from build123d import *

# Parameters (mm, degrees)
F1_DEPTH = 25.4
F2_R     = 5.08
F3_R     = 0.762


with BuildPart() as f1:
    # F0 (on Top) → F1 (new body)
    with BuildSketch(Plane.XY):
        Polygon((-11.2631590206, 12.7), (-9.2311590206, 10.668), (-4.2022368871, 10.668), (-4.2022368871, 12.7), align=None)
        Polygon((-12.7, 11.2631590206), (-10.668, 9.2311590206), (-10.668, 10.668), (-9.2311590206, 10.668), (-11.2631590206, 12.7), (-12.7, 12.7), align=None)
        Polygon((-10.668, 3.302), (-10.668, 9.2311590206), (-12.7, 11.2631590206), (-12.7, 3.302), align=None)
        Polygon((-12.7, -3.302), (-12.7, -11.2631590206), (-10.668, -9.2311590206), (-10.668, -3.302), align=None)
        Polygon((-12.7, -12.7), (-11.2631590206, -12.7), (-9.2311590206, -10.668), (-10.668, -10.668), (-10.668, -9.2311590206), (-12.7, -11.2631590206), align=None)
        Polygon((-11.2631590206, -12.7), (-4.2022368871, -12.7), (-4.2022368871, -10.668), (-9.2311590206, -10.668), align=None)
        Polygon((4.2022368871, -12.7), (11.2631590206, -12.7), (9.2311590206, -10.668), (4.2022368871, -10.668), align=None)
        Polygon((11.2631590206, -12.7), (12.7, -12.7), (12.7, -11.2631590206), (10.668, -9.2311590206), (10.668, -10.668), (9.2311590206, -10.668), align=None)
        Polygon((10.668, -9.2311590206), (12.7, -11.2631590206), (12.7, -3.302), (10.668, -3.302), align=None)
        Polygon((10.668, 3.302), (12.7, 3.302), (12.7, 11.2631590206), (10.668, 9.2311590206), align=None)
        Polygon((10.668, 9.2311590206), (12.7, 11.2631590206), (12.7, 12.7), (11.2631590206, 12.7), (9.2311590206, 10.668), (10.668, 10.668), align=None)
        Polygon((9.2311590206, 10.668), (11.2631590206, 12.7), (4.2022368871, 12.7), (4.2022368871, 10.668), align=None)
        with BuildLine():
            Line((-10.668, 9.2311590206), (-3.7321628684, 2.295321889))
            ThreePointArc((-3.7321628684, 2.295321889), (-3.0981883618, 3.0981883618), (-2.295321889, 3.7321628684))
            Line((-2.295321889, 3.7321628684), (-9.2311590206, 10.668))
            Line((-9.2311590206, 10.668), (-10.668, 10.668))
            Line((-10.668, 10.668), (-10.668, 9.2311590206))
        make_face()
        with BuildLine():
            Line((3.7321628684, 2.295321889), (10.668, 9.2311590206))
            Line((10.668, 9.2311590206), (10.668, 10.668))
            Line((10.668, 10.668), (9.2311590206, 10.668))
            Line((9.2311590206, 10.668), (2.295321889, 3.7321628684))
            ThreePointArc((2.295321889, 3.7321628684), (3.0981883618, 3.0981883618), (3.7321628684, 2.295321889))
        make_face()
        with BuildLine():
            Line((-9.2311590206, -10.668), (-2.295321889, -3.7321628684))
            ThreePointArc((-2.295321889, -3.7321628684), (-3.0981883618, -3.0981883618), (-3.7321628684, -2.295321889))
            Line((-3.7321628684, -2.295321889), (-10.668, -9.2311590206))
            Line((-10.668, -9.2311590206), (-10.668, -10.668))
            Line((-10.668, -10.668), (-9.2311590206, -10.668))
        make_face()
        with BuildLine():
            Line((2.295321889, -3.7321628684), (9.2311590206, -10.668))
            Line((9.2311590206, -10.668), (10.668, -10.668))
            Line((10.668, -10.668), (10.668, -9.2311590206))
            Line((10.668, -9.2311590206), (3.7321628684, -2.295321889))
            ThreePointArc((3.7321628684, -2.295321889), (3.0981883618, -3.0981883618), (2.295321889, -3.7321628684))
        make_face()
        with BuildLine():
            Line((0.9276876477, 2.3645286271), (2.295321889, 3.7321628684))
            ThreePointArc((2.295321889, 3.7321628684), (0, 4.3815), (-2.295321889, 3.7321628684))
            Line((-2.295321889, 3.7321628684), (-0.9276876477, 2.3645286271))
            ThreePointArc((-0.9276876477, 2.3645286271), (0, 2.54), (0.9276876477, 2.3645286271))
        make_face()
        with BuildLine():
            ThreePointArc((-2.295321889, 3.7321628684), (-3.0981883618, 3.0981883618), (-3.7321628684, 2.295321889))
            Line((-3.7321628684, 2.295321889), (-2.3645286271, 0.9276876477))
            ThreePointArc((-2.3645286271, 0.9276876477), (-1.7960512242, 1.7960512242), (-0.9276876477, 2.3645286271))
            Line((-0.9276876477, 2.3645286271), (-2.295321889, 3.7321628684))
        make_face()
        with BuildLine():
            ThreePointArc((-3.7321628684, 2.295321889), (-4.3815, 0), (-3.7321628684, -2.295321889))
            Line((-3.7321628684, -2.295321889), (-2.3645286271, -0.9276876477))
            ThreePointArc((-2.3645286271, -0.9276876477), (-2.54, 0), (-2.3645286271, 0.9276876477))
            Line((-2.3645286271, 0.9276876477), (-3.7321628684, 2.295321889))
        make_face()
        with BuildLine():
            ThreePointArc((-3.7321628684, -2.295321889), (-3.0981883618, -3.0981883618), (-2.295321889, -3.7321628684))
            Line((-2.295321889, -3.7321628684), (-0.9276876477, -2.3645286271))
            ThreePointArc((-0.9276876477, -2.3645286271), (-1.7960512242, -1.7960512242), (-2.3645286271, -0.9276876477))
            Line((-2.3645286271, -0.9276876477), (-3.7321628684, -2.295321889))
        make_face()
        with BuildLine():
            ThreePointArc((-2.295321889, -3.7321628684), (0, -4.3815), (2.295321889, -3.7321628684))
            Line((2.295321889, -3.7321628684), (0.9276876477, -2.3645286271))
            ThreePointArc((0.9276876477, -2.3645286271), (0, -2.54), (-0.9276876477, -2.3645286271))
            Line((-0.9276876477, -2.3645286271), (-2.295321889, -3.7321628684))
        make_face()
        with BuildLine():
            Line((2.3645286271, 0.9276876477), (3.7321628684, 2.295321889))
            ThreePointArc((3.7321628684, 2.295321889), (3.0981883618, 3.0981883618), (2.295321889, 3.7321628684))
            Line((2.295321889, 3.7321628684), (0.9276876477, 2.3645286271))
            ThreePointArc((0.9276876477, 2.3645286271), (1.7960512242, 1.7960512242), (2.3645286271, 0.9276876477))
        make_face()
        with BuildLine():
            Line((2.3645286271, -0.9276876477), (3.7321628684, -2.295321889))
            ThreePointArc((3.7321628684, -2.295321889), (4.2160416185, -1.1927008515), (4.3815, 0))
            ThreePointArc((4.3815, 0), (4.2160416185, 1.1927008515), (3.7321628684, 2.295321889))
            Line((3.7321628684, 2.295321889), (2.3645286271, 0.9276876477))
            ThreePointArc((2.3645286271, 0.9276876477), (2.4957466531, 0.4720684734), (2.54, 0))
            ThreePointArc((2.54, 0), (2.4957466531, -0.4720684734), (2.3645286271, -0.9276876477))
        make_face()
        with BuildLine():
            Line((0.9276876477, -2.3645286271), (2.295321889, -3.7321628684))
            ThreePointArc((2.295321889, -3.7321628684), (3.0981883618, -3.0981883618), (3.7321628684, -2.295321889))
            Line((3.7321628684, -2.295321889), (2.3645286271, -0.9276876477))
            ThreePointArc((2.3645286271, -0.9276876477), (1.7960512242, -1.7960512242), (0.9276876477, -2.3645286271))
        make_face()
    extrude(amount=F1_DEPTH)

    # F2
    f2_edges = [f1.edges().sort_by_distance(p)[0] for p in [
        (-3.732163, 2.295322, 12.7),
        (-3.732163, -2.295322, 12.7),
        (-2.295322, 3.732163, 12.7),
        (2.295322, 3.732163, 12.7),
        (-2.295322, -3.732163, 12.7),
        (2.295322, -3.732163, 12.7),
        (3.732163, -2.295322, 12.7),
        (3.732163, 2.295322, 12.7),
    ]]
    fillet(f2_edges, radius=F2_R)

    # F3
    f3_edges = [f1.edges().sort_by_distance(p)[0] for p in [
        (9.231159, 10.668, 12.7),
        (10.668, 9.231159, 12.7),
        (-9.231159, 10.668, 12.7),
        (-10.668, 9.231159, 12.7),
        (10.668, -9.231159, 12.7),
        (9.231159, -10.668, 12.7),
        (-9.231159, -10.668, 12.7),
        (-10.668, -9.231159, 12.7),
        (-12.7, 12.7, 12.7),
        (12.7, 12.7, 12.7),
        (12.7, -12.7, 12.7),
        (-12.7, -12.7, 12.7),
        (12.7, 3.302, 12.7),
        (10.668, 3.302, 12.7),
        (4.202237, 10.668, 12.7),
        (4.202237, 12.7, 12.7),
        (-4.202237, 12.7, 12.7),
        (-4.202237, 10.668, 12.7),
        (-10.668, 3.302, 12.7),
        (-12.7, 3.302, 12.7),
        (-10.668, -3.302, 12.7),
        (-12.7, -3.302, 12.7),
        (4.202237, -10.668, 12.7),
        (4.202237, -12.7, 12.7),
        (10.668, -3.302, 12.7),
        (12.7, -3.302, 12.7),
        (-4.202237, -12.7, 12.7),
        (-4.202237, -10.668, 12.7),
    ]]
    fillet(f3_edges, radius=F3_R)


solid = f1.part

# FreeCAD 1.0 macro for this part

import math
import FreeCAD as App
import Part
import Sketcher
from FreeCAD import Vector
Q = App.Units.Quantity


def edges_at(feature, points):
    """Names of the edges that pass closest to the given points."""
    edges = feature.Shape.Edges
    near = lambda p: min(range(len(edges)), key=lambda i: edges[i].distToShape(Part.Vertex(*p))[0])
    return sorted({f"Edge{near(p) + 1}" for p in points})

doc = App.newDocument("Part")
body = doc.addObject("PartDesign::Body", "Body")

# Sketch on XY plane
sketch1 = body.newObject("Sketcher::SketchObject", "Sketch")
sketch1.AttachmentSupport = (doc.getObject("XY_Plane"), [""])
sketch1.MapMode = "FlatFace"
sketch1.addGeometry(Part.LineSegment(Vector(-4.2, 10.7, 0), Vector(-4.2, 12.7, 0)), False)
sketch1.addGeometry(Part.LineSegment(Vector(-4.2, 12.7, 0), Vector(-12.7, 12.7, 0)), False)
sketch1.addGeometry(Part.LineSegment(Vector(-12.7, 12.7, 0), Vector(-12.7, 3.3, 0)), False)
sketch1.addGeometry(Part.LineSegment(Vector(-12.7, 3.3, 0), Vector(-10.7, 3.3, 0)), False)
sketch1.addGeometry(Part.LineSegment(Vector(-10.7, 3.3, 0), Vector(-10.7, 9.2, 0)), False)
sketch1.addGeometry(Part.LineSegment(Vector(-10.7, 9.2, 0), Vector(-3.7, 2.3, 0)), False)
sketch1.addGeometry(Part.ArcOfCircle(Part.Circle(Vector(0, 0, 0), Vector(0, 0, 1), 4.4), math.radians(148), math.radians(212)), False)
sketch1.addGeometry(Part.LineSegment(Vector(-3.7, -2.3, 0), Vector(-10.7, -9.2, 0)), False)
sketch1.addGeometry(Part.LineSegment(Vector(-10.7, -9.2, 0), Vector(-10.7, -3.3, 0)), False)
sketch1.addGeometry(Part.LineSegment(Vector(-10.7, -3.3, 0), Vector(-12.7, -3.3, 0)), False)
sketch1.addGeometry(Part.LineSegment(Vector(-12.7, -3.3, 0), Vector(-12.7, -12.7, 0)), False)
sketch1.addGeometry(Part.LineSegment(Vector(-12.7, -12.7, 0), Vector(-4.2, -12.7, 0)), False)
sketch1.addGeometry(Part.LineSegment(Vector(-4.2, -12.7, 0), Vector(-4.2, -10.7, 0)), False)
sketch1.addGeometry(Part.LineSegment(Vector(-4.2, -10.7, 0), Vector(-9.2, -10.7, 0)), False)
sketch1.addGeometry(Part.LineSegment(Vector(-9.2, -10.7, 0), Vector(-2.3, -3.7, 0)), False)
sketch1.addGeometry(Part.ArcOfCircle(Part.Circle(Vector(0, 0, 0), Vector(0, 0, 1), 4.4), math.radians(-122), math.radians(-58)), False)
sketch1.addGeometry(Part.LineSegment(Vector(2.3, -3.7, 0), Vector(9.2, -10.7, 0)), False)
sketch1.addGeometry(Part.LineSegment(Vector(9.2, -10.7, 0), Vector(4.2, -10.7, 0)), False)
sketch1.addGeometry(Part.LineSegment(Vector(4.2, -10.7, 0), Vector(4.2, -12.7, 0)), False)
sketch1.addGeometry(Part.LineSegment(Vector(4.2, -12.7, 0), Vector(12.7, -12.7, 0)), False)
sketch1.addGeometry(Part.LineSegment(Vector(12.7, -12.7, 0), Vector(12.7, -3.3, 0)), False)
sketch1.addGeometry(Part.LineSegment(Vector(12.7, -3.3, 0), Vector(10.7, -3.3, 0)), False)
sketch1.addGeometry(Part.LineSegment(Vector(10.7, -3.3, 0), Vector(10.7, -9.2, 0)), False)
sketch1.addGeometry(Part.LineSegment(Vector(10.7, -9.2, 0), Vector(3.7, -2.3, 0)), False)
sketch1.addGeometry(Part.ArcOfCircle(Part.Circle(Vector(0, 0, 0), Vector(0, 0, 1), 4.4), math.radians(-32), math.radians(0)), False)
sketch1.addGeometry(Part.ArcOfCircle(Part.Circle(Vector(0, 0, 0), Vector(0, 0, 1), 4.4), math.radians(0), math.radians(32)), False)
sketch1.addGeometry(Part.LineSegment(Vector(3.7, 2.3, 0), Vector(10.7, 9.2, 0)), False)
sketch1.addGeometry(Part.LineSegment(Vector(10.7, 9.2, 0), Vector(10.7, 3.3, 0)), False)
sketch1.addGeometry(Part.LineSegment(Vector(10.7, 3.3, 0), Vector(12.7, 3.3, 0)), False)
sketch1.addGeometry(Part.LineSegment(Vector(12.7, 3.3, 0), Vector(12.7, 12.7, 0)), False)
sketch1.addGeometry(Part.LineSegment(Vector(12.7, 12.7, 0), Vector(4.2, 12.7, 0)), False)
sketch1.addGeometry(Part.LineSegment(Vector(4.2, 12.7, 0), Vector(4.2, 10.7, 0)), False)
sketch1.addGeometry(Part.LineSegment(Vector(4.2, 10.7, 0), Vector(9.2, 10.7, 0)), False)
sketch1.addGeometry(Part.LineSegment(Vector(9.2, 10.7, 0), Vector(2.3, 3.7, 0)), False)
sketch1.addGeometry(Part.ArcOfCircle(Part.Circle(Vector(0, 0, 0), Vector(0, 0, 1), 4.4), math.radians(58), math.radians(122)), False)
sketch1.addGeometry(Part.LineSegment(Vector(-2.3, 3.7, 0), Vector(-9.2, 10.7, 0)), False)
sketch1.addGeometry(Part.LineSegment(Vector(-9.2, 10.7, 0), Vector(-4.2, 10.7, 0)), False)
sketch1.addGeometry(Part.ArcOfCircle(Part.Circle(Vector(0, 0, 0), Vector(0, 0, 1), 2.5), math.radians(-111), math.radians(-69)), False)
sketch1.addGeometry(Part.ArcOfCircle(Part.Circle(Vector(0, 0, 0), Vector(0, 0, 1), 2.5), math.radians(-159), math.radians(-111)), False)
sketch1.addGeometry(Part.ArcOfCircle(Part.Circle(Vector(0, 0, 0), Vector(0, 0, 1), 2.5), math.radians(159), math.radians(201)), False)
sketch1.addGeometry(Part.ArcOfCircle(Part.Circle(Vector(0, 0, 0), Vector(0, 0, 1), 2.5), math.radians(111), math.radians(159)), False)
sketch1.addGeometry(Part.ArcOfCircle(Part.Circle(Vector(0, 0, 0), Vector(0, 0, 1), 2.5), math.radians(69), math.radians(111)), False)
sketch1.addGeometry(Part.ArcOfCircle(Part.Circle(Vector(0, 0, 0), Vector(0, 0, 1), 2.5), math.radians(21), math.radians(69)), False)
sketch1.addGeometry(Part.ArcOfCircle(Part.Circle(Vector(0, 0, 0), Vector(0, 0, 1), 2.5), math.radians(0), math.radians(21)), False)
sketch1.addGeometry(Part.ArcOfCircle(Part.Circle(Vector(0, 0, 0), Vector(0, 0, 1), 2.5), math.radians(-21), math.radians(0)), False)
sketch1.addGeometry(Part.ArcOfCircle(Part.Circle(Vector(0, 0, 0), Vector(0, 0, 1), 2.5), math.radians(-69), math.radians(-21)), False)
sketch1.addConstraint(Sketcher.Constraint("Coincident", 0, 2, 1, 1))
sketch1.addConstraint(Sketcher.Constraint("Coincident", 1, 2, 2, 1))
sketch1.addConstraint(Sketcher.Constraint("Coincident", 2, 2, 3, 1))
sketch1.addConstraint(Sketcher.Constraint("Coincident", 3, 2, 4, 1))
sketch1.addConstraint(Sketcher.Constraint("Coincident", 4, 2, 5, 1))
sketch1.addConstraint(Sketcher.Constraint("Coincident", 5, 2, 6, 1))
sketch1.addConstraint(Sketcher.Constraint("Coincident", 6, 2, 7, 1))
sketch1.addConstraint(Sketcher.Constraint("Coincident", 7, 2, 8, 1))
sketch1.addConstraint(Sketcher.Constraint("Coincident", 8, 2, 9, 1))
sketch1.addConstraint(Sketcher.Constraint("Coincident", 9, 2, 10, 1))
sketch1.addConstraint(Sketcher.Constraint("Coincident", 10, 2, 11, 1))
sketch1.addConstraint(Sketcher.Constraint("Coincident", 11, 2, 12, 1))
sketch1.addConstraint(Sketcher.Constraint("Coincident", 12, 2, 13, 1))
sketch1.addConstraint(Sketcher.Constraint("Coincident", 13, 2, 14, 1))
sketch1.addConstraint(Sketcher.Constraint("Coincident", 14, 2, 15, 1))
sketch1.addConstraint(Sketcher.Constraint("Coincident", 15, 2, 16, 1))
sketch1.addConstraint(Sketcher.Constraint("Coincident", 16, 2, 17, 1))
sketch1.addConstraint(Sketcher.Constraint("Coincident", 17, 2, 18, 1))
sketch1.addConstraint(Sketcher.Constraint("Coincident", 18, 2, 19, 1))
sketch1.addConstraint(Sketcher.Constraint("Coincident", 19, 2, 20, 1))
sketch1.addConstraint(Sketcher.Constraint("Coincident", 20, 2, 21, 1))
sketch1.addConstraint(Sketcher.Constraint("Coincident", 21, 2, 22, 1))
sketch1.addConstraint(Sketcher.Constraint("Coincident", 22, 2, 23, 1))
sketch1.addConstraint(Sketcher.Constraint("Coincident", 23, 2, 24, 1))
sketch1.addConstraint(Sketcher.Constraint("Tangent", 24, 2, 25, 1))
sketch1.addConstraint(Sketcher.Constraint("Coincident", 25, 2, 26, 1))
sketch1.addConstraint(Sketcher.Constraint("Coincident", 26, 2, 27, 1))
sketch1.addConstraint(Sketcher.Constraint("Coincident", 27, 2, 28, 1))
sketch1.addConstraint(Sketcher.Constraint("Coincident", 28, 2, 29, 1))
sketch1.addConstraint(Sketcher.Constraint("Coincident", 29, 2, 30, 1))
sketch1.addConstraint(Sketcher.Constraint("Coincident", 30, 2, 31, 1))
sketch1.addConstraint(Sketcher.Constraint("Coincident", 31, 2, 32, 1))
sketch1.addConstraint(Sketcher.Constraint("Coincident", 32, 2, 33, 1))
sketch1.addConstraint(Sketcher.Constraint("Coincident", 33, 2, 34, 1))
sketch1.addConstraint(Sketcher.Constraint("Coincident", 34, 2, 35, 1))
sketch1.addConstraint(Sketcher.Constraint("Coincident", 35, 2, 36, 1))
sketch1.addConstraint(Sketcher.Constraint("Coincident", 36, 2, 0, 1))
sketch1.addConstraint(Sketcher.Constraint("Tangent", 37, 1, 38, 2))
sketch1.addConstraint(Sketcher.Constraint("Tangent", 38, 1, 39, 2))
sketch1.addConstraint(Sketcher.Constraint("Tangent", 39, 1, 40, 2))
sketch1.addConstraint(Sketcher.Constraint("Tangent", 40, 1, 41, 2))
sketch1.addConstraint(Sketcher.Constraint("Tangent", 41, 1, 42, 2))
sketch1.addConstraint(Sketcher.Constraint("Tangent", 42, 1, 43, 2))
sketch1.addConstraint(Sketcher.Constraint("Tangent", 43, 1, 44, 2))
sketch1.addConstraint(Sketcher.Constraint("Tangent", 44, 1, 45, 2))
sketch1.addConstraint(Sketcher.Constraint("Tangent", 45, 1, 37, 2))
sketch1.addConstraint(Sketcher.Constraint("Vertical", 0))
sketch1.addConstraint(Sketcher.Constraint("Horizontal", 1))
sketch1.addConstraint(Sketcher.Constraint("Vertical", 2))
sketch1.addConstraint(Sketcher.Constraint("Horizontal", 3))
sketch1.addConstraint(Sketcher.Constraint("Vertical", 4))
sketch1.addConstraint(Sketcher.Constraint("Vertical", 8))
sketch1.addConstraint(Sketcher.Constraint("Horizontal", 9))
sketch1.addConstraint(Sketcher.Constraint("Vertical", 10))
sketch1.addConstraint(Sketcher.Constraint("Horizontal", 11))
sketch1.addConstraint(Sketcher.Constraint("Vertical", 12))
sketch1.addConstraint(Sketcher.Constraint("Horizontal", 13))
sketch1.addConstraint(Sketcher.Constraint("Horizontal", 17))
sketch1.addConstraint(Sketcher.Constraint("Vertical", 18))
sketch1.addConstraint(Sketcher.Constraint("Horizontal", 19))
sketch1.addConstraint(Sketcher.Constraint("Vertical", 20))
sketch1.addConstraint(Sketcher.Constraint("Horizontal", 21))
sketch1.addConstraint(Sketcher.Constraint("Vertical", 22))
sketch1.addConstraint(Sketcher.Constraint("Vertical", 27))
sketch1.addConstraint(Sketcher.Constraint("Horizontal", 28))
sketch1.addConstraint(Sketcher.Constraint("Vertical", 29))
sketch1.addConstraint(Sketcher.Constraint("Horizontal", 30))
sketch1.addConstraint(Sketcher.Constraint("Vertical", 31))
sketch1.addConstraint(Sketcher.Constraint("Horizontal", 32))
sketch1.addConstraint(Sketcher.Constraint("Horizontal", 36))
sketch1.addConstraint(Sketcher.Constraint("Coincident", 6, 3, -1, 1))
sketch1.addConstraint(Sketcher.Constraint("Coincident", 15, 3, -1, 1))
sketch1.addConstraint(Sketcher.Constraint("Coincident", 24, 3, -1, 1))
sketch1.addConstraint(Sketcher.Constraint("Coincident", 34, 3, -1, 1))
sketch1.addConstraint(Sketcher.Constraint("Coincident", 37, 3, -1, 1))
sketch1.addConstraint(Sketcher.Constraint("Coincident", 39, 3, -1, 1))
sketch1.addConstraint(Sketcher.Constraint("Coincident", 41, 3, -1, 1))
sketch1.addConstraint(Sketcher.Constraint("Coincident", 43, 3, -1, 1))
sketch1.addConstraint(Sketcher.Constraint("Equal", 6, 15))
sketch1.addConstraint(Sketcher.Constraint("Equal", 15, 24))
sketch1.addConstraint(Sketcher.Constraint("Equal", 24, 25))
sketch1.addConstraint(Sketcher.Constraint("Equal", 25, 34))
sketch1.addConstraint(Sketcher.Constraint("Symmetric", 0, 2, 18, 2, -1, 1))
sketch1.addConstraint(Sketcher.Constraint("Symmetric", 2, 2, 20, 2, -1, 1))
sketch1.addConstraint(Sketcher.Constraint("Symmetric", 4, 2, 22, 2, -1, 1))
sketch1.addConstraint(Sketcher.Constraint("Symmetric", 7, 2, 26, 2, -1, 1))
sketch1.addConstraint(Sketcher.Constraint("Symmetric", 9, 2, 28, 2, -1, 1))
sketch1.addConstraint(Sketcher.Constraint("Symmetric", 11, 2, 30, 2, -1, 1))
sketch1.addConstraint(Sketcher.Constraint("Symmetric", 13, 2, 32, 2, -1, 1))
sketch1.addConstraint(Sketcher.Constraint("Symmetric", 16, 2, 35, 2, -1, 1))
sketch1.addConstraint(Sketcher.Constraint("Symmetric", 13, 2, 16, 2, -2))
sketch1.addConstraint(Sketcher.Constraint("Symmetric", 11, 2, 18, 2, -2))
sketch1.addConstraint(Sketcher.Constraint("Symmetric", 9, 2, 20, 2, -2))
sketch1.addConstraint(Sketcher.Constraint("Symmetric", 7, 2, 22, 2, -2))
sketch1.addConstraint(Sketcher.Constraint("PointOnObject", 24, 2, -1))
sketch1.addConstraint(Sketcher.Constraint("PointOnObject", 43, 1, -1))
sketch1.addConstraint(Sketcher.Constraint("Perpendicular", 5, 7))
sketch1.addConstraint(Sketcher.Constraint("Parallel", 7, 14))
sketch1.addConstraint(Sketcher.Constraint("Perpendicular", 14, 16))
sketch1.addConstraint(Sketcher.Constraint("Parallel", 16, 23))
sketch1.addConstraint(Sketcher.Constraint("Perpendicular", 23, 26))
sketch1.addConstraint(Sketcher.Constraint("Parallel", 26, 33))
sketch1.addConstraint(Sketcher.Constraint("Perpendicular", 33, 35))
sketch1.addConstraint(Sketcher.Constraint("Horizontal", 14, 2, 15, 2))
sketch1.addConstraint(Sketcher.Constraint("Horizontal", 40, 1, 41, 1))
sketch1.addConstraint(Sketcher.Constraint("Horizontal", 39, 1, 42, 1))
sketch1.addConstraint(Sketcher.Constraint("Horizontal", 38, 1, 44, 1))
sketch1.addConstraint(Sketcher.Constraint("Horizontal", 37, 1, 45, 1))
sketch1.addConstraint(Sketcher.Constraint("Vertical", 38, 1, 39, 1))
sketch1.addConstraint(Sketcher.Constraint("Vertical", 37, 1, 40, 1))
sketch1.addConstraint(Sketcher.Constraint("Equal", 28, 0))
sketch1.addConstraint(Sketcher.Constraint("Equal", 7, 14))
sketch1.addConstraint(Sketcher.Constraint("Radius", 37, Q("0.1 in")))
sketch1.addConstraint(Sketcher.Constraint("DistanceX", 3, 1, 3, 2, Q("0.08 in")))
sketch1.addConstraint(Sketcher.Constraint("DistanceY", 2, 2, 2, 1, Q("0.37 in")))
sketch1.addConstraint(Sketcher.Constraint("DistanceY", -1, 1, 0, 2, Q("0.5 in")))
sketch1.addConstraint(Sketcher.Constraint("DistanceX", 1, 2, -1, 1, Q("0.5 in")))
sketch1.addConstraint(Sketcher.Constraint("Radius", 6, Q("0.1725 in")))
sketch1.addConstraint(Sketcher.Constraint("DistanceY", 4, 1, 4, 2, Q("5.929159 mm")))
sketch1.addConstraint(Sketcher.Constraint("DistanceX", 1, 2, 1, 1, Q("8.497763 mm")))
sketch1.addConstraint(Sketcher.Constraint("DistanceY", 37, 1, -1, 1, Q("2.364529 mm")))
sketch1.addConstraint(Sketcher.Constraint("DistanceX", 38, 1, -1, 1, Q("2.364529 mm")))
pad1 = body.newObject("PartDesign::Pad", "Pad")
pad1.Profile = sketch1
pad1.Length = Q("1 in")
doc.recompute()

fillet = body.newObject("PartDesign::Fillet", "Fillet")
fillet.Base = (pad1, edges_at(pad1, [
    (-3.732, 2.295, 12.7),
    (-3.732, -2.295, 12.7),
    (-2.295, 3.732, 12.7),
    (2.295, 3.732, 12.7),
    (-2.295, -3.732, 12.7),
    (2.295, -3.732, 12.7),
    (3.732, -2.295, 12.7),
    (3.732, 2.295, 12.7),
]))
fillet.Radius = Q("0.2 in")
doc.recompute()

fillet2 = body.newObject("PartDesign::Fillet", "Fillet001")
fillet2.Base = (fillet, edges_at(fillet, [
    (9.231, 10.668, 12.7),
    (10.668, 9.231, 12.7),
    (-9.231, 10.668, 12.7),
    (-10.668, 9.231, 12.7),
    (10.668, -9.231, 12.7),
    (9.231, -10.668, 12.7),
    (-9.231, -10.668, 12.7),
    (-10.668, -9.231, 12.7),
    (-12.7, 12.7, 12.7),
    (12.7, 12.7, 12.7),
    (12.7, -12.7, 12.7),
    (-12.7, -12.7, 12.7),
    (12.7, 3.302, 12.7),
    (10.668, 3.302, 12.7),
    (4.202, 10.668, 12.7),
    (4.202, 12.7, 12.7),
    (-4.202, 12.7, 12.7),
    (-4.202, 10.668, 12.7),
    (-10.668, 3.302, 12.7),
    (-12.7, 3.302, 12.7),
    (-10.668, -3.302, 12.7),
    (-12.7, -3.302, 12.7),
    (4.202, -10.668, 12.7),
    (4.202, -12.7, 12.7),
    (10.668, -3.302, 12.7),
    (12.7, -3.302, 12.7),
    (-4.202, -12.7, 12.7),
    (-4.202, -10.668, 12.7),
]))
fillet2.Radius = Q("0.03 in")

doc.recompute()
